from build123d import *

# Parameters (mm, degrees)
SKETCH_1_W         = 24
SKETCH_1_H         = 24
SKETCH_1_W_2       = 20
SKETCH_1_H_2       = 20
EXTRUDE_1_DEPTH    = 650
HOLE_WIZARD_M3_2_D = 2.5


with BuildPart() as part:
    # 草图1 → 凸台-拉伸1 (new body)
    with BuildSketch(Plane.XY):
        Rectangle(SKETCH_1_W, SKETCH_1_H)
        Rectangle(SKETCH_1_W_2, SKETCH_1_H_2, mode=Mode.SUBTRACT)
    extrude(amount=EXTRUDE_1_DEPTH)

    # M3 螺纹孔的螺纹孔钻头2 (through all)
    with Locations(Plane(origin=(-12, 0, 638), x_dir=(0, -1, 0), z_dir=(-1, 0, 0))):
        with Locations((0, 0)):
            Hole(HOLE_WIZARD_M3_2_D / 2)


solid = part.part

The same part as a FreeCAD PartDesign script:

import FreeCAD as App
import Part
import Sketcher

doc = App.newDocument("Part")
body = doc.addObject("PartDesign::Body", "Body")

# Sketch on XY plane
sketch1 = body.newObject("Sketcher::SketchObject", "Sketch")
sketch1.AttachmentSupport = (doc.getObject("XY_Plane"), [""])
sketch1.MapMode = "FlatFace"
sketch1.addGeometry(Part.LineSegment(App.Vector(-12, 12, 0), App.Vector(-12, -12, 0)), False)
sketch1.addGeometry(Part.LineSegment(App.Vector(-12, -12, 0), App.Vector(12, -12, 0)), False)
sketch1.addGeometry(Part.LineSegment(App.Vector(12, -12, 0), App.Vector(12, 12, 0)), False)
sketch1.addGeometry(Part.LineSegment(App.Vector(12, 12, 0), App.Vector(-12, 12, 0)), False)
sketch1.addGeometry(Part.LineSegment(App.Vector(10, -10, 0), App.Vector(-10, -10, 0)), False)
sketch1.addGeometry(Part.LineSegment(App.Vector(-10, -10, 0), App.Vector(-10, 10, 0)), False)
sketch1.addGeometry(Part.LineSegment(App.Vector(-10, 10, 0), App.Vector(10, 10, 0)), False)
sketch1.addGeometry(Part.LineSegment(App.Vector(10, 10, 0), App.Vector(10, -10, 0)), False)
sketch1.addConstraint(Sketcher.Constraint("Coincident", 0, 2, 1, 1))
sketch1.addConstraint(Sketcher.Constraint("Coincident", 1, 2, 2, 1))
sketch1.addConstraint(Sketcher.Constraint("Coincident", 2, 2, 3, 1))
sketch1.addConstraint(Sketcher.Constraint("Coincident", 3, 2, 0, 1))
sketch1.addConstraint(Sketcher.Constraint("Coincident", 4, 2, 5, 1))
sketch1.addConstraint(Sketcher.Constraint("Coincident", 5, 2, 6, 1))
sketch1.addConstraint(Sketcher.Constraint("Coincident", 6, 2, 7, 1))
sketch1.addConstraint(Sketcher.Constraint("Coincident", 7, 2, 4, 1))
sketch1.addConstraint(Sketcher.Constraint("Vertical", 0))
sketch1.addConstraint(Sketcher.Constraint("Horizontal", 1))
sketch1.addConstraint(Sketcher.Constraint("Vertical", 2))
sketch1.addConstraint(Sketcher.Constraint("Horizontal", 3))
sketch1.addConstraint(Sketcher.Constraint("Horizontal", 4))
sketch1.addConstraint(Sketcher.Constraint("Vertical", 5))
sketch1.addConstraint(Sketcher.Constraint("Horizontal", 6))
sketch1.addConstraint(Sketcher.Constraint("Vertical", 7))
sketch1.addConstraint(Sketcher.Constraint("Symmetric", 0, 2, 2, 2, -1, 1))
sketch1.addConstraint(Sketcher.Constraint("Symmetric", 4, 2, 6, 2, -1, 1))
sketch1.addConstraint(Sketcher.Constraint("Equal", 3, 0))
sketch1.addConstraint(Sketcher.Constraint("Equal", 6, 5))
sketch1.addConstraint(Sketcher.Constraint("DistanceX", 1, 1, 1, 2, 24.0))
sketch1.addConstraint(Sketcher.Constraint("DistanceX", 4, 2, 4, 1, 20.0))
pad1 = body.newObject("PartDesign::Pad", "Pad")
pad1.Profile = sketch1
pad1.Length = 650

# Sketch on YZ plane
sketch2 = body.newObject("Sketcher::SketchObject", "Sketch001")
sketch2.AttachmentSupport = (doc.getObject("YZ_Plane"), [""])
sketch2.MapMode = "FlatFace"
sketch2.AttachmentOffset = App.Placement(App.Vector(0, 0, -12), App.Rotation())
sketch2.addGeometry(Part.Circle(App.Vector(0, 638, 0), App.Vector(0, 0, 1), 1.25), False)
sketch2.addConstraint(Sketcher.Constraint("PointOnObject", 0, 3, -2))
sketch2.addConstraint(Sketcher.Constraint("Diameter", 0, 2.5))
sketch2.addConstraint(Sketcher.Constraint("DistanceY", -1, 1, 0, 3, 638.0))
doc.recompute()
hole = body.newObject("PartDesign::Hole", "Hole")
hole.Profile = sketch2
hole.ThreadType = "None"
hole.Diameter = 2.5
hole.DepthType = "ThroughAll"
hole.Reversed = True

doc.recompute()
